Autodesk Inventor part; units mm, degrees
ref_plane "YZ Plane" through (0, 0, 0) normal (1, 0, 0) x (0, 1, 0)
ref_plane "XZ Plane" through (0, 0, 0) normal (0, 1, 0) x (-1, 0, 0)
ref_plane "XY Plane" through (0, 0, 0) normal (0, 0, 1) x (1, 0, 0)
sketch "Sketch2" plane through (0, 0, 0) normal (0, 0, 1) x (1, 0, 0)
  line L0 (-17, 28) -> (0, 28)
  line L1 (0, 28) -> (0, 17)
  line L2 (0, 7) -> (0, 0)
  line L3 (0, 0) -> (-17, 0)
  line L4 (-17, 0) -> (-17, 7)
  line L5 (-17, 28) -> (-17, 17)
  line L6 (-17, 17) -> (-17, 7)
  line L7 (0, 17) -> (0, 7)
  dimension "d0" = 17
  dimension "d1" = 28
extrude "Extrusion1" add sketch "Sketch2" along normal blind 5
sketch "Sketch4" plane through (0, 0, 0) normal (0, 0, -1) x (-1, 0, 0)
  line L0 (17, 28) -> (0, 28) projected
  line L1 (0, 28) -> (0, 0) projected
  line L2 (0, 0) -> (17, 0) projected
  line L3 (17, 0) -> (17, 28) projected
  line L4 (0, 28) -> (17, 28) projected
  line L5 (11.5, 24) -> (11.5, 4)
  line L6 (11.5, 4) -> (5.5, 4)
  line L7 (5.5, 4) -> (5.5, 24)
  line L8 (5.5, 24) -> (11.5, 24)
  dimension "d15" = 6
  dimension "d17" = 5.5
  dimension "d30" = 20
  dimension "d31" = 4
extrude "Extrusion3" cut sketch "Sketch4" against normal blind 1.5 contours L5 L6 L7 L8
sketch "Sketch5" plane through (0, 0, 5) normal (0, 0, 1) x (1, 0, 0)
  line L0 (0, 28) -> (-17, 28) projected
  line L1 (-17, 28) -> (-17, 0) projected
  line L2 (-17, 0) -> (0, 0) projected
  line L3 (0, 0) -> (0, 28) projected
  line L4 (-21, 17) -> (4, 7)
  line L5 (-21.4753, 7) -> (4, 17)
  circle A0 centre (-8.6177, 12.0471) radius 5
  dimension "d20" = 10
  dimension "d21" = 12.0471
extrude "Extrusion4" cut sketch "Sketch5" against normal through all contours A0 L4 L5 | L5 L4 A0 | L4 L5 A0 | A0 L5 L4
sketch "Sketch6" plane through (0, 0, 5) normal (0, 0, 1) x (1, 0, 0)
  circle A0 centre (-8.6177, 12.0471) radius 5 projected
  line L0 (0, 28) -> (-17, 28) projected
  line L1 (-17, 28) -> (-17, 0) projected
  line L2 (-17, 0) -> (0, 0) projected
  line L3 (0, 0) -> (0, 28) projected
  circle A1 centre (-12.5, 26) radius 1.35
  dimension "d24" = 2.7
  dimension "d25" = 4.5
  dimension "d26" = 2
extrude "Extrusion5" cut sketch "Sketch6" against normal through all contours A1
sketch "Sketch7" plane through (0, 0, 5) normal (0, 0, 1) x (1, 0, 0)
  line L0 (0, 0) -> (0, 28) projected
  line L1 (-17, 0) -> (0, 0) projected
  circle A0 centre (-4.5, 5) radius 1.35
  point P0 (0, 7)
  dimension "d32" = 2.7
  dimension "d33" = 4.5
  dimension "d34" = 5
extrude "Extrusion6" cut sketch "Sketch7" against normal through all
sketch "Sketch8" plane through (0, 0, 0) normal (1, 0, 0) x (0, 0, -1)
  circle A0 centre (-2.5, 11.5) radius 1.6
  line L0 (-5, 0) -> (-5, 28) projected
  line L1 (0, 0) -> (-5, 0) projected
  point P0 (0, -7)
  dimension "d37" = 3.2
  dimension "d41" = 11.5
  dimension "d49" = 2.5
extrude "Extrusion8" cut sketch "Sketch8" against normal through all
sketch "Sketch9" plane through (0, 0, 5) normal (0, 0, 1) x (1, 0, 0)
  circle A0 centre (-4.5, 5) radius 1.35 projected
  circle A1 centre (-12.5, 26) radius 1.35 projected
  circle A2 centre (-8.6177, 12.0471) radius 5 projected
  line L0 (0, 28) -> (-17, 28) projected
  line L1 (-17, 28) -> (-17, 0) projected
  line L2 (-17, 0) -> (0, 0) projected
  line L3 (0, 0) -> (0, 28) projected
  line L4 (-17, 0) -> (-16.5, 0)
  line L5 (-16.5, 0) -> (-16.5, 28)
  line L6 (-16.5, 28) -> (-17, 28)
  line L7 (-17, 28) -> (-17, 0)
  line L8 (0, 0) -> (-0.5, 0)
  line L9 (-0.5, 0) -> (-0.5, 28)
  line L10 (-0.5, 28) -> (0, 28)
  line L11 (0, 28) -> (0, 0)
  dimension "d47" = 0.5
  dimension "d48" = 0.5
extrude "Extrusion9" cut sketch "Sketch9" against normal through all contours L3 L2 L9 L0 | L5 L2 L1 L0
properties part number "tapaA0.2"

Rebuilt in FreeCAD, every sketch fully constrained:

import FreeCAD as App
import Part
import Sketcher

V = App.Vector
Q = App.Units.Quantity

doc = App.newDocument("Part")
body = doc.addObject("PartDesign::Body", "Body")

# Sketch on XY plane
sketch1 = body.newObject("Sketcher::SketchObject", "Sketch")
sketch1.AttachmentSupport = (doc.getObject("XY_Plane"), [""])
sketch1.MapMode = "FlatFace"
sketch1.addGeometry(Part.LineSegment(V(0, 28, 0), V(-17, 28, 0)), False)
sketch1.addGeometry(Part.LineSegment(V(-17, 28, 0), V(-17, 0, 0)), False)
sketch1.addGeometry(Part.LineSegment(V(-17, 0, 0), V(0, 0, 0)), False)
sketch1.addGeometry(Part.LineSegment(V(0, 0, 0), V(0, 28, 0)), False)
sketch1.addConstraint(Sketcher.Constraint("Coincident", 0, 2, 1, 1))
sketch1.addConstraint(Sketcher.Constraint("Coincident", 1, 2, 2, 1))
sketch1.addConstraint(Sketcher.Constraint("Coincident", 2, 2, 3, 1))
sketch1.addConstraint(Sketcher.Constraint("Coincident", 3, 2, 0, 1))
sketch1.addConstraint(Sketcher.Constraint("Horizontal", 0))
sketch1.addConstraint(Sketcher.Constraint("Vertical", 1))
sketch1.addConstraint(Sketcher.Constraint("Horizontal", 2))
sketch1.addConstraint(Sketcher.Constraint("Vertical", 3))
sketch1.addConstraint(Sketcher.Constraint("Coincident", 2, 2, -1, 1))
sketch1.addConstraint(Sketcher.Constraint("DistanceX", 0, 2, 0, 1, Q("17 mm")))
sketch1.addConstraint(Sketcher.Constraint("DistanceY", 1, 2, 1, 1, Q("28 mm")))
pad1 = body.newObject("PartDesign::Pad", "Pad")
pad1.Profile = sketch1
pad1.Length = 5

# Sketch on XY plane
sketch2 = body.newObject("Sketcher::SketchObject", "Sketch001")
sketch2.AttachmentSupport = (doc.getObject("XY_Plane"), [""])
sketch2.MapMode = "FlatFace"
sketch2.addGeometry(Part.LineSegment(V(-12, 4, 0), V(-12, 24, 0)), False)
sketch2.addGeometry(Part.LineSegment(V(-12, 24, 0), V(-6, 24, 0)), False)
sketch2.addGeometry(Part.LineSegment(V(-6, 24, 0), V(-6, 4, 0)), False)
sketch2.addGeometry(Part.LineSegment(V(-6, 4, 0), V(-12, 4, 0)), False)
sketch2.addConstraint(Sketcher.Constraint("Coincident", 0, 2, 1, 1))
sketch2.addConstraint(Sketcher.Constraint("Coincident", 1, 2, 2, 1))
sketch2.addConstraint(Sketcher.Constraint("Coincident", 2, 2, 3, 1))
sketch2.addConstraint(Sketcher.Constraint("Coincident", 3, 2, 0, 1))
sketch2.addConstraint(Sketcher.Constraint("Vertical", 0))
sketch2.addConstraint(Sketcher.Constraint("Horizontal", 1))
sketch2.addConstraint(Sketcher.Constraint("Vertical", 2))
sketch2.addConstraint(Sketcher.Constraint("Horizontal", 3))
sketch2.addConstraint(Sketcher.Constraint("DistanceX", 1, 1, 1, 2, Q("6 mm")))
sketch2.addConstraint(Sketcher.Constraint("DistanceY", 0, 1, 0, 2, Q("20 mm")))
sketch2.addConstraint(Sketcher.Constraint("DistanceY", -1, 1, 2, 2, Q("4 mm")))
sketch2.addConstraint(Sketcher.Constraint("DistanceX", 1, 2, -1, 1, Q("5.5 mm")))
pocket1 = body.newObject("PartDesign::Pocket", "Pocket")
pocket1.Profile = sketch2
pocket1.Length = 1.5
pocket1.Reversed = True

# Sketch on XY plane
sketch3 = body.newObject("Sketcher::SketchObject", "Sketch002")
sketch3.AttachmentSupport = (doc.getObject("XY_Plane"), [""])
sketch3.MapMode = "FlatFace"
sketch3.AttachmentOffset = App.Placement(V(0, 0, 5), App.Rotation())
sketch3.addGeometry(Part.Circle(V(-9, 12, 0), V(0, 0, 1), 5), False)
sketch3.addConstraint(Sketcher.Constraint("Diameter", 0, Q("10 mm")))
sketch3.addConstraint(Sketcher.Constraint("DistanceY", -1, 1, 0, 3, Q("12.047 mm")))
sketch3.addConstraint(Sketcher.Constraint("DistanceX", 0, 3, -1, 1, Q("8.6177 mm")))
pocket2 = body.newObject("PartDesign::Pocket", "Pocket001")
pocket2.Profile = sketch3
pocket2.Type = "ThroughAll"

# Sketch on XY plane
sketch4 = body.newObject("Sketcher::SketchObject", "Sketch003")
sketch4.AttachmentSupport = (doc.getObject("XY_Plane"), [""])
sketch4.MapMode = "FlatFace"
sketch4.AttachmentOffset = App.Placement(V(0, 0, 5), App.Rotation())
sketch4.addGeometry(Part.Circle(V(-12.5, 26, 0), V(0, 0, 1), 1.4), False)
sketch4.addConstraint(Sketcher.Constraint("Diameter", 0, Q("2.7 mm")))
sketch4.addConstraint(Sketcher.Constraint("DistanceY", -1, 1, 0, 3, Q("26 mm")))
sketch4.addConstraint(Sketcher.Constraint("DistanceX", 0, 3, -1, 1, Q("12.5 mm")))
pocket3 = body.newObject("PartDesign::Pocket", "Pocket002")
pocket3.Profile = sketch4
pocket3.Type = "ThroughAll"

# Sketch on XY plane
sketch5 = body.newObject("Sketcher::SketchObject", "Sketch004")
sketch5.AttachmentSupport = (doc.getObject("XY_Plane"), [""])
sketch5.MapMode = "FlatFace"
sketch5.AttachmentOffset = App.Placement(V(0, 0, 5), App.Rotation())
sketch5.addGeometry(Part.Circle(V(-4.5, 5, 0), V(0, 0, 1), 1.4), False)
sketch5.addConstraint(Sketcher.Constraint("Diameter", 0, Q("2.7 mm")))
sketch5.addConstraint(Sketcher.Constraint("DistanceY", -1, 1, 0, 3, Q("5 mm")))
sketch5.addConstraint(Sketcher.Constraint("DistanceX", 0, 3, -1, 1, Q("4.5 mm")))
pocket4 = body.newObject("PartDesign::Pocket", "Pocket003")
pocket4.Profile = sketch5
pocket4.Type = "ThroughAll"

# Sketch on YZ plane
sketch6 = body.newObject("Sketcher::SketchObject", "Sketch005")
sketch6.AttachmentSupport = (doc.getObject("YZ_Plane"), [""])
sketch6.MapMode = "FlatFace"
sketch6.addGeometry(Part.Circle(V(11.5, 2.5, 0), V(0, 0, 1), 1.6), False)
sketch6.addConstraint(Sketcher.Constraint("Diameter", 0, Q("3.2 mm")))
sketch6.addConstraint(Sketcher.Constraint("DistanceX", -1, 1, 0, 3, Q("11.5 mm")))
sketch6.addConstraint(Sketcher.Constraint("DistanceY", -1, 1, 0, 3, Q("2.5 mm")))
pocket5 = body.newObject("PartDesign::Pocket", "Pocket004")
pocket5.Profile = sketch6
pocket5.Type = "ThroughAll"

# Sketch on XY plane
sketch7 = body.newObject("Sketcher::SketchObject", "Sketch006")
sketch7.AttachmentSupport = (doc.getObject("XY_Plane"), [""])
sketch7.MapMode = "FlatFace"
sketch7.AttachmentOffset = App.Placement(V(0, 0, 5), App.Rotation())
sketch7.addGeometry(Part.LineSegment(V(0, 0, 0), V(0, 28, 0)), False)
sketch7.addGeometry(Part.LineSegment(V(0, 28, 0), V(-0.5, 28, 0)), False)
sketch7.addGeometry(Part.LineSegment(V(-0.5, 28, 0), V(-0.5, 0, 0)), False)
sketch7.addGeometry(Part.LineSegment(V(-0.5, 0, 0), V(0, 0, 0)), False)
sketch7.addGeometry(Part.LineSegment(V(-16.5, 0, 0), V(-16.5, 28, 0)), False)
sketch7.addGeometry(Part.LineSegment(V(-16.5, 28, 0), V(-17, 28, 0)), False)
sketch7.addGeometry(Part.LineSegment(V(-17, 28, 0), V(-17, 0, 0)), False)
sketch7.addGeometry(Part.LineSegment(V(-17, 0, 0), V(-16.5, 0, 0)), False)
sketch7.addConstraint(Sketcher.Constraint("Coincident", 0, 2, 1, 1))
sketch7.addConstraint(Sketcher.Constraint("Coincident", 1, 2, 2, 1))
sketch7.addConstraint(Sketcher.Constraint("Coincident", 2, 2, 3, 1))
sketch7.addConstraint(Sketcher.Constraint("Coincident", 3, 2, 0, 1))
sketch7.addConstraint(Sketcher.Constraint("Coincident", 4, 2, 5, 1))
sketch7.addConstraint(Sketcher.Constraint("Coincident", 5, 2, 6, 1))
sketch7.addConstraint(Sketcher.Constraint("Coincident", 6, 2, 7, 1))
sketch7.addConstraint(Sketcher.Constraint("Coincident", 7, 2, 4, 1))
sketch7.addConstraint(Sketcher.Constraint("Vertical", 0))
sketch7.addConstraint(Sketcher.Constraint("Horizontal", 1))
sketch7.addConstraint(Sketcher.Constraint("Vertical", 2))
sketch7.addConstraint(Sketcher.Constraint("Horizontal", 3))
sketch7.addConstraint(Sketcher.Constraint("Vertical", 4))
sketch7.addConstraint(Sketcher.Constraint("Horizontal", 5))
sketch7.addConstraint(Sketcher.Constraint("Vertical", 6))
sketch7.addConstraint(Sketcher.Constraint("Horizontal", 7))
sketch7.addConstraint(Sketcher.Constraint("Coincident", 3, 2, -1, 1))
sketch7.addConstraint(Sketcher.Constraint("PointOnObject", 6, 2, -1))
sketch7.addConstraint(Sketcher.Constraint("Horizontal", 1, 2, 4, 2))
sketch7.addConstraint(Sketcher.Constraint("Equal", 3, 5))
sketch7.addConstraint(Sketcher.Constraint("DistanceX", 1, 2, 1, 1, Q("0.5 mm")))
sketch7.addConstraint(Sketcher.Constraint("DistanceY", 0, 1, 0, 2, Q("28 mm")))
sketch7.addConstraint(Sketcher.Constraint("DistanceX", 5, 2, -1, 1, Q("17 mm")))
pocket6 = body.newObject("PartDesign::Pocket", "Pocket005")
pocket6.Profile = sketch7
pocket6.Type = "ThroughAll"

doc.recompute()
